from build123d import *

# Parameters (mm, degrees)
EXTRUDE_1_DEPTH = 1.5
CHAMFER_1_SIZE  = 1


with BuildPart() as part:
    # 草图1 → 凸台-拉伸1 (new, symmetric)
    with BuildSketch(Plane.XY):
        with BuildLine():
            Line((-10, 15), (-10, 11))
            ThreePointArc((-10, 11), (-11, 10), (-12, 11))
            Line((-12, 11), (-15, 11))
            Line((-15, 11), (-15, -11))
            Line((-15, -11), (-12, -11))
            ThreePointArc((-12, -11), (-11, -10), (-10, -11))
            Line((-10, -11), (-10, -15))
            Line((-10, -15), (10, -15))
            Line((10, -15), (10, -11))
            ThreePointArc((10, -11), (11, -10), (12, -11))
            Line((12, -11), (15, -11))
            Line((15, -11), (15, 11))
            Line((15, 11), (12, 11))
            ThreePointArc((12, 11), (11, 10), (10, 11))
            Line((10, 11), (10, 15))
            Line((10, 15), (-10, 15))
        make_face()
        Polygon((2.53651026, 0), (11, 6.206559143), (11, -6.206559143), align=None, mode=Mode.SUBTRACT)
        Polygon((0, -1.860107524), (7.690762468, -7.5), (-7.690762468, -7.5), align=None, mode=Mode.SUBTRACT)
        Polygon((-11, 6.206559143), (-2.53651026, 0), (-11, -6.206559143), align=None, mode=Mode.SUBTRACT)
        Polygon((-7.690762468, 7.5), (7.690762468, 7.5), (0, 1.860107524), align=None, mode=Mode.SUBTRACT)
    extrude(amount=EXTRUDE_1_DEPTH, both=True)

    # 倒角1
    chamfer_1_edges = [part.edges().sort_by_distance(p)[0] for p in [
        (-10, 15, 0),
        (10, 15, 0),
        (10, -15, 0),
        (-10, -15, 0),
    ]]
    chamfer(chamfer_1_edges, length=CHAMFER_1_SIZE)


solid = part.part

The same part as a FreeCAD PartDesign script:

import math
import FreeCAD as App
import Part
import Sketcher
Q = App.Units.Quantity


def edges_at(feature, points):
    """Names of the edges that pass closest to the given points."""
    edges = feature.Shape.Edges
    near = lambda p: min(range(len(edges)), key=lambda i: edges[i].distToShape(Part.Vertex(*p))[0])
    return sorted({f"Edge{near(p) + 1}" for p in points})

doc = App.newDocument("Part")
body = doc.addObject("PartDesign::Body", "Body")

# Sketch on XY plane
sketch1 = body.newObject("Sketcher::SketchObject", "Sketch")
sketch1.AttachmentSupport = (doc.getObject("XY_Plane"), [""])
sketch1.MapMode = "FlatFace"
sketch1.addGeometry(Part.LineSegment(App.Vector(-10, 15, 0), App.Vector(-10, 11, 0)), False)
sketch1.addGeometry(Part.ArcOfCircle(Part.Circle(App.Vector(-11, 11, 0), App.Vector(0, 0, 1), 1), math.radians(180), math.radians(360)), False)
sketch1.addGeometry(Part.LineSegment(App.Vector(-12, 11, 0), App.Vector(-15, 11, 0)), False)
sketch1.addGeometry(Part.LineSegment(App.Vector(-15, 11, 0), App.Vector(-15, -11, 0)), False)
sketch1.addGeometry(Part.LineSegment(App.Vector(-15, -11, 0), App.Vector(-12, -11, 0)), False)
sketch1.addGeometry(Part.ArcOfCircle(Part.Circle(App.Vector(-11, -11, 0), App.Vector(0, 0, 1), 1), math.radians(0), math.radians(180)), False)
sketch1.addGeometry(Part.LineSegment(App.Vector(-10, -11, 0), App.Vector(-10, -15, 0)), False)
sketch1.addGeometry(Part.LineSegment(App.Vector(-10, -15, 0), App.Vector(10, -15, 0)), False)
sketch1.addGeometry(Part.LineSegment(App.Vector(10, -15, 0), App.Vector(10, -11, 0)), False)
sketch1.addGeometry(Part.ArcOfCircle(Part.Circle(App.Vector(11, -11, 0), App.Vector(0, 0, 1), 1), math.radians(0), math.radians(180)), False)
sketch1.addGeometry(Part.LineSegment(App.Vector(12, -11, 0), App.Vector(15, -11, 0)), False)
sketch1.addGeometry(Part.LineSegment(App.Vector(15, -11, 0), App.Vector(15, 11, 0)), False)
sketch1.addGeometry(Part.LineSegment(App.Vector(15, 11, 0), App.Vector(12, 11, 0)), False)
sketch1.addGeometry(Part.ArcOfCircle(Part.Circle(App.Vector(11, 11, 0), App.Vector(0, 0, 1), 1), math.radians(180), math.radians(360)), False)
sketch1.addGeometry(Part.LineSegment(App.Vector(10, 11, 0), App.Vector(10, 15, 0)), False)
sketch1.addGeometry(Part.LineSegment(App.Vector(10, 15, 0), App.Vector(-10, 15, 0)), False)
sketch1.addGeometry(Part.LineSegment(App.Vector(-11, -6.206559, 0), App.Vector(-11, 6.206559, 0)), False)
sketch1.addGeometry(Part.LineSegment(App.Vector(-11, 6.206559, 0), App.Vector(-2.53651, 0, 0)), False)
sketch1.addGeometry(Part.LineSegment(App.Vector(-2.53651, 0, 0), App.Vector(-11, -6.206559, 0)), False)
sketch1.addGeometry(Part.LineSegment(App.Vector(-7.690762, -7.5, 0), App.Vector(0, -1.860108, 0)), False)
sketch1.addGeometry(Part.LineSegment(App.Vector(0, -1.860108, 0), App.Vector(7.690762, -7.5, 0)), False)
sketch1.addGeometry(Part.LineSegment(App.Vector(7.690762, -7.5, 0), App.Vector(-7.690762, -7.5, 0)), False)
sketch1.addGeometry(Part.LineSegment(App.Vector(11, -6.206559, 0), App.Vector(2.53651, 0, 0)), False)
sketch1.addGeometry(Part.LineSegment(App.Vector(2.53651, 0, 0), App.Vector(11, 6.206559, 0)), False)
sketch1.addGeometry(Part.LineSegment(App.Vector(11, 6.206559, 0), App.Vector(11, -6.206559, 0)), False)
sketch1.addGeometry(Part.LineSegment(App.Vector(0, 1.860108, 0), App.Vector(-7.690762, 7.5, 0)), False)
sketch1.addGeometry(Part.LineSegment(App.Vector(-7.690762, 7.5, 0), App.Vector(7.690762, 7.5, 0)), False)
sketch1.addGeometry(Part.LineSegment(App.Vector(7.690762, 7.5, 0), App.Vector(0, 1.860108, 0)), False)
sketch1.addConstraint(Sketcher.Constraint("Tangent", 0, 2, 1, 2))
sketch1.addConstraint(Sketcher.Constraint("Coincident", 1, 1, 2, 1))
sketch1.addConstraint(Sketcher.Constraint("Coincident", 2, 2, 3, 1))
sketch1.addConstraint(Sketcher.Constraint("Coincident", 3, 2, 4, 1))
sketch1.addConstraint(Sketcher.Constraint("Coincident", 4, 2, 5, 2))
sketch1.addConstraint(Sketcher.Constraint("Tangent", 5, 1, 6, 1))
sketch1.addConstraint(Sketcher.Constraint("Coincident", 6, 2, 7, 1))
sketch1.addConstraint(Sketcher.Constraint("Coincident", 7, 2, 8, 1))
sketch1.addConstraint(Sketcher.Constraint("Tangent", 8, 2, 9, 2))
sketch1.addConstraint(Sketcher.Constraint("Coincident", 9, 1, 10, 1))
sketch1.addConstraint(Sketcher.Constraint("Coincident", 10, 2, 11, 1))
sketch1.addConstraint(Sketcher.Constraint("Coincident", 11, 2, 12, 1))
sketch1.addConstraint(Sketcher.Constraint("Coincident", 12, 2, 13, 2))
sketch1.addConstraint(Sketcher.Constraint("Tangent", 13, 1, 14, 1))
sketch1.addConstraint(Sketcher.Constraint("Coincident", 14, 2, 15, 1))
sketch1.addConstraint(Sketcher.Constraint("Coincident", 15, 2, 0, 1))
sketch1.addConstraint(Sketcher.Constraint("Coincident", 16, 2, 17, 1))
sketch1.addConstraint(Sketcher.Constraint("Coincident", 17, 2, 18, 1))
sketch1.addConstraint(Sketcher.Constraint("Coincident", 18, 2, 16, 1))
sketch1.addConstraint(Sketcher.Constraint("Coincident", 19, 2, 20, 1))
sketch1.addConstraint(Sketcher.Constraint("Coincident", 20, 2, 21, 1))
sketch1.addConstraint(Sketcher.Constraint("Coincident", 21, 2, 19, 1))
sketch1.addConstraint(Sketcher.Constraint("Coincident", 22, 2, 23, 1))
sketch1.addConstraint(Sketcher.Constraint("Coincident", 23, 2, 24, 1))
sketch1.addConstraint(Sketcher.Constraint("Coincident", 24, 2, 22, 1))
sketch1.addConstraint(Sketcher.Constraint("Coincident", 25, 2, 26, 1))
sketch1.addConstraint(Sketcher.Constraint("Coincident", 26, 2, 27, 1))
sketch1.addConstraint(Sketcher.Constraint("Coincident", 27, 2, 25, 1))
sketch1.addConstraint(Sketcher.Constraint("Vertical", 0))
sketch1.addConstraint(Sketcher.Constraint("Horizontal", 2))
sketch1.addConstraint(Sketcher.Constraint("Vertical", 3))
sketch1.addConstraint(Sketcher.Constraint("Horizontal", 4))
sketch1.addConstraint(Sketcher.Constraint("Vertical", 6))
sketch1.addConstraint(Sketcher.Constraint("Horizontal", 7))
sketch1.addConstraint(Sketcher.Constraint("Vertical", 8))
sketch1.addConstraint(Sketcher.Constraint("Horizontal", 10))
sketch1.addConstraint(Sketcher.Constraint("Vertical", 11))
sketch1.addConstraint(Sketcher.Constraint("Horizontal", 12))
sketch1.addConstraint(Sketcher.Constraint("Vertical", 14))
sketch1.addConstraint(Sketcher.Constraint("Horizontal", 15))
sketch1.addConstraint(Sketcher.Constraint("Vertical", 16))
sketch1.addConstraint(Sketcher.Constraint("Horizontal", 21))
sketch1.addConstraint(Sketcher.Constraint("Vertical", 24))
sketch1.addConstraint(Sketcher.Constraint("Horizontal", 26))
sketch1.addConstraint(Sketcher.Constraint("Equal", 1, 5))
sketch1.addConstraint(Sketcher.Constraint("Equal", 5, 9))
sketch1.addConstraint(Sketcher.Constraint("Equal", 9, 13))
sketch1.addConstraint(Sketcher.Constraint("Symmetric", 1, 3, 9, 3, -1, 1))
sketch1.addConstraint(Sketcher.Constraint("Symmetric", 5, 3, 13, 3, -1, 1))
sketch1.addConstraint(Sketcher.Constraint("Symmetric", 2, 2, 10, 2, -1, 1))
sketch1.addConstraint(Sketcher.Constraint("Symmetric", 17, 2, 22, 2, -1, 1))
sketch1.addConstraint(Sketcher.Constraint("Symmetric", 18, 2, 23, 2, -1, 1))
sketch1.addConstraint(Sketcher.Constraint("Symmetric", 20, 2, 25, 2, -1, 1))
sketch1.addConstraint(Sketcher.Constraint("Symmetric", 19, 2, 27, 2, -1, 1))
sketch1.addConstraint(Sketcher.Constraint("Symmetric", 5, 3, 9, 3, -2))
sketch1.addConstraint(Sketcher.Constraint("PointOnObject", 17, 2, -1))
sketch1.addConstraint(Sketcher.Constraint("PointOnObject", 19, 2, -2))
sketch1.addConstraint(Sketcher.Constraint("Parallel", 18, 19))
sketch1.addConstraint(Sketcher.Constraint("Parallel", 17, 20))
sketch1.addConstraint(Sketcher.Constraint("Parallel", 20, 22))
sketch1.addConstraint(Sketcher.Constraint("Parallel", 23, 27))
sketch1.addConstraint(Sketcher.Constraint("Horizontal", 0, 2, 1, 1))
sketch1.addConstraint(Sketcher.Constraint("Horizontal", 9, 3, 3, 2))
sketch1.addConstraint(Sketcher.Constraint("Horizontal", 2, 2, 11, 2))
sketch1.addConstraint(Sketcher.Constraint("Horizontal", 16, 2, 23, 2))
sketch1.addConstraint(Sketcher.Constraint("Vertical", 5, 3, 16, 2))
sketch1.addConstraint(Sketcher.Constraint("Equal", 0, 6))
sketch1.addConstraint(Sketcher.Constraint("Radius", 1, Q("1 mm")))
sketch1.addConstraint(Sketcher.Constraint("DistanceX", 2, 2, 2, 1, Q("3 mm")))
sketch1.addConstraint(Sketcher.Constraint("DistanceX", 7, 1, 7, 2, Q("20 mm")))
sketch1.addConstraint(Sketcher.Constraint("DistanceY", 0, 2, 0, 1, Q("4 mm")))
sketch1.addConstraint(Sketcher.Constraint("DistanceY", 3, 2, 3, 1, Q("22 mm")))
sketch1.addConstraint(Sketcher.Constraint("DistanceY", 20, 2, -1, 1, Q("7.5 mm")))
sketch1.addConstraint(Sketcher.Constraint("DistanceY", 16, 1, 16, 2, Q("12.413118 mm")))
sketch1.addConstraint(Sketcher.Constraint("DistanceX", 21, 2, 21, 1, Q("15.381525 mm")))
sketch1.addConstraint(Sketcher.Constraint("DistanceX", 17, 2, -1, 1, Q("2.53651 mm")))
pad1 = body.newObject("PartDesign::Pad", "Pad")
pad1.Profile = sketch1
pad1.Length = 3
pad1.Midplane = True
doc.recompute()

chamfer = body.newObject("PartDesign::Chamfer", "Chamfer")
chamfer.Base = (pad1, edges_at(pad1, [
    (-10, 15, 0),
    (10, 15, 0),
    (10, -15, 0),
    (-10, -15, 0),
]))
chamfer.Size = 1

doc.recompute()
